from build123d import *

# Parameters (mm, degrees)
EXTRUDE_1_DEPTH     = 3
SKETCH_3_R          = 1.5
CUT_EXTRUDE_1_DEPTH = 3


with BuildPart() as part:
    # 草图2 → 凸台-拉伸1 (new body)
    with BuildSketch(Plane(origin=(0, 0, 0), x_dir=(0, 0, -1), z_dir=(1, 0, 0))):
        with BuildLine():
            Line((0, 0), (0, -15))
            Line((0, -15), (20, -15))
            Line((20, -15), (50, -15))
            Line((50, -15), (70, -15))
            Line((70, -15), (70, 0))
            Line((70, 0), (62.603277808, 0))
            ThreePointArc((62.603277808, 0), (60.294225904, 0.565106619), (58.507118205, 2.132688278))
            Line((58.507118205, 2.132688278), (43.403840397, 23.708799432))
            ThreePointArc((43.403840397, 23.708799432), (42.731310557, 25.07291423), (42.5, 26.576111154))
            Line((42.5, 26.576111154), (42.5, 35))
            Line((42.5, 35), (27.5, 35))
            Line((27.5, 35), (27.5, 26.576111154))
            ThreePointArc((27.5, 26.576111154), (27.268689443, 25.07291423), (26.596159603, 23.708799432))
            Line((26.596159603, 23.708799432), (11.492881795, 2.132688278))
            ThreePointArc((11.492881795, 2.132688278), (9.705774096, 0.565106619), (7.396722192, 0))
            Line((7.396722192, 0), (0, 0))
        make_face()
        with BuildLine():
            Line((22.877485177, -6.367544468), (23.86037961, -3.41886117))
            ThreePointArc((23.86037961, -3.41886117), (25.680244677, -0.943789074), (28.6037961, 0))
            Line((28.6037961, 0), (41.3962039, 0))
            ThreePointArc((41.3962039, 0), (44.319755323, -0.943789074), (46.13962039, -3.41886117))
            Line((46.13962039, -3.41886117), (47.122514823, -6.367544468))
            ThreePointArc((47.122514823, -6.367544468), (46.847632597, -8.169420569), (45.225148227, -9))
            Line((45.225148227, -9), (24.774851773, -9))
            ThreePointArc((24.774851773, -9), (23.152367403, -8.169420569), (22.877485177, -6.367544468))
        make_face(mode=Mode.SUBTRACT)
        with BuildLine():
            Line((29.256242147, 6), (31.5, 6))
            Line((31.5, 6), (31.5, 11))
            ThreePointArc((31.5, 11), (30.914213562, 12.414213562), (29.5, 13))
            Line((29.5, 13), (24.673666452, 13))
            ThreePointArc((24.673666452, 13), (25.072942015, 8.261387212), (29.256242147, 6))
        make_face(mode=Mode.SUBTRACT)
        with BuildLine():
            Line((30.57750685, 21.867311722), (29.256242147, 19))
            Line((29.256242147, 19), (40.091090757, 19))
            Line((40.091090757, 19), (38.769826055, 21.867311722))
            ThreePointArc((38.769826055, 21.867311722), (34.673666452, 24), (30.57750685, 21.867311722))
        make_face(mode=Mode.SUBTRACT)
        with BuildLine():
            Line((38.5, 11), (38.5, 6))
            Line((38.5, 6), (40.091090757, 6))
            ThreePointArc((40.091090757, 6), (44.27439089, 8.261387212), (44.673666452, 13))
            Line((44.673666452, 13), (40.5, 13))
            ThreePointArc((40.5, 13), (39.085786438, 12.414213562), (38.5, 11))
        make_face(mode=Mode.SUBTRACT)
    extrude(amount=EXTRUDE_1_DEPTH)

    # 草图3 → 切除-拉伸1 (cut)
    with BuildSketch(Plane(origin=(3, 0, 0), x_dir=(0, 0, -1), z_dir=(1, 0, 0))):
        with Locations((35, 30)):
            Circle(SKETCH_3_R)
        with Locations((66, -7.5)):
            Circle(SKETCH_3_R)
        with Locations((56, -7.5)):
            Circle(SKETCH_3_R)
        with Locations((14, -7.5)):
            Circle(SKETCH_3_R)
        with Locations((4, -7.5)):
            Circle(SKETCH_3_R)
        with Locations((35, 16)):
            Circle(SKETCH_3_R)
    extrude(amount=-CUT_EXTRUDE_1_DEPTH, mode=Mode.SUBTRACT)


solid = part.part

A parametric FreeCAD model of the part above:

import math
import FreeCAD as App
import Part
import Sketcher
Q = App.Units.Quantity

doc = App.newDocument("Part")
body = doc.addObject("PartDesign::Body", "Body")

sketch1 = body.newObject("Sketcher::SketchObject", "Sketch")
sketch1.AttachmentSupport = (doc.getObject("YZ_Plane"), [""])
sketch1.MapMode = "FlatFace"
sketch1.addGeometry(Part.LineSegment(App.Vector(0, 0, 0), App.Vector(-15, 0, 0)), False)
sketch1.addGeometry(Part.LineSegment(App.Vector(-15, 0, 0), App.Vector(-15, -70, 0)), False)
sketch1.addGeometry(Part.LineSegment(App.Vector(-15, -70, 0), App.Vector(0, -70, 0)), False)
sketch1.addGeometry(Part.LineSegment(App.Vector(0, -70, 0), App.Vector(0, -62.6, 0)), False)
sketch1.addGeometry(Part.ArcOfCircle(Part.Circle(App.Vector(5, -62.6, 0), App.Vector(0, 0, 1), 5), math.radians(125), math.radians(180)), False)
sketch1.addGeometry(Part.LineSegment(App.Vector(2.1, -58.5, 0), App.Vector(23.7, -43.4, 0)), False)
sketch1.addGeometry(Part.ArcOfCircle(Part.Circle(App.Vector(26.6, -47.5, 0), App.Vector(0, 0, 1), 5), math.radians(90), math.radians(125)), False)
sketch1.addGeometry(Part.LineSegment(App.Vector(26.6, -42.5, 0), App.Vector(35, -42.5, 0)), False)
sketch1.addGeometry(Part.LineSegment(App.Vector(35, -42.5, 0), App.Vector(35, -27.5, 0)), False)
sketch1.addGeometry(Part.LineSegment(App.Vector(35, -27.5, 0), App.Vector(26.6, -27.5, 0)), False)
sketch1.addGeometry(Part.ArcOfCircle(Part.Circle(App.Vector(26.6, -22.5, 0), App.Vector(0, 0, 1), 5), math.radians(-125), math.radians(-90)), False)
sketch1.addGeometry(Part.LineSegment(App.Vector(23.7, -26.6, 0), App.Vector(2.1, -11.5, 0)), False)
sketch1.addGeometry(Part.ArcOfCircle(Part.Circle(App.Vector(5, -7.4, 0), App.Vector(0, 0, 1), 5), math.radians(-180), math.radians(-125)), False)
sketch1.addGeometry(Part.LineSegment(App.Vector(0, -7.4, 0), App.Vector(0, 0, 0)), False)
sketch1.addGeometry(Part.ArcOfCircle(Part.Circle(App.Vector(-7, -24.8, 0), App.Vector(0, 0, 1), 2), math.radians(72), math.radians(180)), False)
sketch1.addGeometry(Part.LineSegment(App.Vector(-6.4, -22.9, 0), App.Vector(-3.4, -23.9, 0)), False)
sketch1.addGeometry(Part.ArcOfCircle(Part.Circle(App.Vector(-5, -28.6, 0), App.Vector(0, 0, 1), 5), math.radians(0), math.radians(72)), False)
sketch1.addGeometry(Part.LineSegment(App.Vector(0, -28.6, 0), App.Vector(0, -41.4, 0)), False)
sketch1.addGeometry(Part.ArcOfCircle(Part.Circle(App.Vector(-5, -41.4, 0), App.Vector(0, 0, 1), 5), math.radians(-72), math.radians(0)), False)
sketch1.addGeometry(Part.LineSegment(App.Vector(-3.4, -46.1, 0), App.Vector(-6.4, -47.1, 0)), False)
sketch1.addGeometry(Part.ArcOfCircle(Part.Circle(App.Vector(-7, -45.2, 0), App.Vector(0, 0, 1), 2), math.radians(-180), math.radians(-72)), False)
sketch1.addGeometry(Part.LineSegment(App.Vector(-9, -45.2, 0), App.Vector(-9, -24.8, 0)), False)
sketch1.addGeometry(Part.LineSegment(App.Vector(6, -31.5, 0), App.Vector(6, -29.3, 0)), False)
sketch1.addGeometry(Part.ArcOfCircle(Part.Circle(App.Vector(11, -29.3, 0), App.Vector(0, 0, 1), 5), math.radians(66), math.radians(180)), False)
sketch1.addGeometry(Part.LineSegment(App.Vector(13, -24.7, 0), App.Vector(13, -29.5, 0)), False)
sketch1.addGeometry(Part.ArcOfCircle(Part.Circle(App.Vector(11, -29.5, 0), App.Vector(0, 0, 1), 2), math.radians(-90), math.radians(0)), False)
sketch1.addGeometry(Part.LineSegment(App.Vector(11, -31.5, 0), App.Vector(6, -31.5, 0)), False)
sketch1.addGeometry(Part.LineSegment(App.Vector(19, -29.3, 0), App.Vector(21.9, -30.6, 0)), False)
sketch1.addGeometry(Part.ArcOfCircle(Part.Circle(App.Vector(19, -34.7, 0), App.Vector(0, 0, 1), 5), math.radians(-55), math.radians(55)), False)
sketch1.addGeometry(Part.LineSegment(App.Vector(21.9, -38.8, 0), App.Vector(19, -40.1, 0)), False)
sketch1.addGeometry(Part.LineSegment(App.Vector(19, -40.1, 0), App.Vector(19, -29.3, 0)), False)
sketch1.addGeometry(Part.LineSegment(App.Vector(6, -38.5, 0), App.Vector(11, -38.5, 0)), False)
sketch1.addGeometry(Part.ArcOfCircle(Part.Circle(App.Vector(11, -40.5, 0), App.Vector(0, 0, 1), 2), math.radians(0), math.radians(90)), False)
sketch1.addGeometry(Part.LineSegment(App.Vector(13, -40.5, 0), App.Vector(13, -44.7, 0)), False)
sketch1.addGeometry(Part.ArcOfCircle(Part.Circle(App.Vector(11, -40.1, 0), App.Vector(0, 0, 1), 5), math.radians(180), math.radians(294)), False)
sketch1.addGeometry(Part.LineSegment(App.Vector(6, -40.1, 0), App.Vector(6, -38.5, 0)), False)
sketch1.addConstraint(Sketcher.Constraint("Coincident", 0, 2, 1, 1))
sketch1.addConstraint(Sketcher.Constraint("Coincident", 1, 2, 2, 1))
sketch1.addConstraint(Sketcher.Constraint("Coincident", 2, 2, 3, 1))
sketch1.addConstraint(Sketcher.Constraint("Tangent", 3, 2, 4, 2))
sketch1.addConstraint(Sketcher.Constraint("Tangent", 4, 1, 5, 1))
sketch1.addConstraint(Sketcher.Constraint("Tangent", 5, 2, 6, 2))
sketch1.addConstraint(Sketcher.Constraint("Tangent", 6, 1, 7, 1))
sketch1.addConstraint(Sketcher.Constraint("Coincident", 7, 2, 8, 1))
sketch1.addConstraint(Sketcher.Constraint("Coincident", 8, 2, 9, 1))
sketch1.addConstraint(Sketcher.Constraint("Tangent", 9, 2, 10, 2))
sketch1.addConstraint(Sketcher.Constraint("Tangent", 10, 1, 11, 1))
sketch1.addConstraint(Sketcher.Constraint("Tangent", 11, 2, 12, 2))
sketch1.addConstraint(Sketcher.Constraint("Tangent", 12, 1, 13, 1))
sketch1.addConstraint(Sketcher.Constraint("Coincident", 13, 2, 0, 1))
sketch1.addConstraint(Sketcher.Constraint("Tangent", 14, 1, 15, 1))
sketch1.addConstraint(Sketcher.Constraint("Tangent", 15, 2, 16, 2))
sketch1.addConstraint(Sketcher.Constraint("Tangent", 16, 1, 17, 1))
sketch1.addConstraint(Sketcher.Constraint("Tangent", 17, 2, 18, 2))
sketch1.addConstraint(Sketcher.Constraint("Tangent", 18, 1, 19, 1))
sketch1.addConstraint(Sketcher.Constraint("Tangent", 19, 2, 20, 2))
sketch1.addConstraint(Sketcher.Constraint("Tangent", 20, 1, 21, 1))
sketch1.addConstraint(Sketcher.Constraint("Tangent", 21, 2, 14, 2))
sketch1.addConstraint(Sketcher.Constraint("Tangent", 22, 2, 23, 2))
sketch1.addConstraint(Sketcher.Constraint("Coincident", 23, 1, 24, 1))
sketch1.addConstraint(Sketcher.Constraint("Tangent", 24, 2, 25, 2))
sketch1.addConstraint(Sketcher.Constraint("Tangent", 25, 1, 26, 1))
sketch1.addConstraint(Sketcher.Constraint("Coincident", 26, 2, 22, 1))
sketch1.addConstraint(Sketcher.Constraint("Coincident", 27, 2, 28, 2))
sketch1.addConstraint(Sketcher.Constraint("Coincident", 28, 1, 29, 1))
sketch1.addConstraint(Sketcher.Constraint("Coincident", 29, 2, 30, 1))
sketch1.addConstraint(Sketcher.Constraint("Coincident", 30, 2, 27, 1))
sketch1.addConstraint(Sketcher.Constraint("Tangent", 31, 2, 32, 2))
sketch1.addConstraint(Sketcher.Constraint("Tangent", 32, 1, 33, 1))
sketch1.addConstraint(Sketcher.Constraint("Coincident", 33, 2, 34, 2))
sketch1.addConstraint(Sketcher.Constraint("Tangent", 34, 1, 35, 1))
sketch1.addConstraint(Sketcher.Constraint("Coincident", 35, 2, 31, 1))
sketch1.addConstraint(Sketcher.Constraint("Horizontal", 0))
sketch1.addConstraint(Sketcher.Constraint("Vertical", 1))
sketch1.addConstraint(Sketcher.Constraint("Horizontal", 2))
sketch1.addConstraint(Sketcher.Constraint("Vertical", 3))
sketch1.addConstraint(Sketcher.Constraint("Horizontal", 7))
sketch1.addConstraint(Sketcher.Constraint("Vertical", 8))
sketch1.addConstraint(Sketcher.Constraint("Horizontal", 9))
sketch1.addConstraint(Sketcher.Constraint("Vertical", 13))
sketch1.addConstraint(Sketcher.Constraint("Vertical", 17))
sketch1.addConstraint(Sketcher.Constraint("Vertical", 21))
sketch1.addConstraint(Sketcher.Constraint("Vertical", 22))
sketch1.addConstraint(Sketcher.Constraint("Vertical", 24))
sketch1.addConstraint(Sketcher.Constraint("Horizontal", 26))
sketch1.addConstraint(Sketcher.Constraint("Vertical", 30))
sketch1.addConstraint(Sketcher.Constraint("Horizontal", 31))
sketch1.addConstraint(Sketcher.Constraint("Vertical", 33))
sketch1.addConstraint(Sketcher.Constraint("Vertical", 35))
sketch1.addConstraint(Sketcher.Constraint("Coincident", 13, 2, -1, 1))
sketch1.addConstraint(Sketcher.Constraint("Equal", 4, 6))
sketch1.addConstraint(Sketcher.Constraint("Equal", 6, 10))
sketch1.addConstraint(Sketcher.Constraint("Equal", 10, 12))
sketch1.addConstraint(Sketcher.Constraint("Equal", 12, 16))
sketch1.addConstraint(Sketcher.Constraint("Equal", 16, 18))
sketch1.addConstraint(Sketcher.Constraint("Equal", 14, 20))
sketch1.addConstraint(Sketcher.Constraint("Equal", 18, 23))
sketch1.addConstraint(Sketcher.Constraint("Equal", 20, 25))
sketch1.addConstraint(Sketcher.Constraint("Equal", 23, 28))
sketch1.addConstraint(Sketcher.Constraint("Equal", 25, 32))
sketch1.addConstraint(Sketcher.Constraint("Equal", 28, 34))
sketch1.addConstraint(Sketcher.Constraint("PointOnObject", 2, 2, -2))
sketch1.addConstraint(Sketcher.Constraint("PointOnObject", 16, 1, -2))
sketch1.addConstraint(Sketcher.Constraint("Horizontal", 34, 3, 29, 2))
sketch1.addConstraint(Sketcher.Constraint("Horizontal", 22, 2, 30, 2))
sketch1.addConstraint(Sketcher.Constraint("Vertical", 6, 3, 10, 3))
sketch1.addConstraint(Sketcher.Constraint("Vertical", 23, 3, 25, 3))
sketch1.addConstraint(Sketcher.Constraint("Vertical", 25, 3, 32, 3))
sketch1.addConstraint(Sketcher.Constraint("Vertical", 32, 3, 34, 3))
sketch1.addConstraint(Sketcher.Constraint("Vertical", 5, 2, 10, 1))
sketch1.addConstraint(Sketcher.Constraint("Vertical", 15, 2, 18, 1))
sketch1.addConstraint(Sketcher.Constraint("Vertical", 27, 2, 28, 1))
sketch1.addConstraint(Sketcher.Constraint("Vertical", 28, 3, 29, 2))
sketch1.addConstraint(Sketcher.Constraint("Equal", 2, 8))
sketch1.addConstraint(Sketcher.Constraint("Equal", 3, 13))
sketch1.addConstraint(Sketcher.Constraint("Equal", 27, 29))
sketch1.addConstraint(Sketcher.Constraint("Radius", 4, Q("5 mm")))
sketch1.addConstraint(Sketcher.Constraint("Radius", 14, Q("2 mm")))
sketch1.addConstraint(Sketcher.Constraint("DistanceX", 0, 2, 0, 1, Q("15 mm")))
sketch1.addConstraint(Sketcher.Constraint("DistanceY", 1, 2, 1, 1, Q("70 mm")))
sketch1.addConstraint(Sketcher.Constraint("DistanceX", 14, 3, -1, 1, Q("7 mm")))
sketch1.addConstraint(Sketcher.Constraint("DistanceX", -1, 1, 23, 3, Q("11 mm")))
sketch1.addConstraint(Sketcher.Constraint("DistanceX", -1, 1, 28, 3, Q("19 mm")))
sketch1.addConstraint(Sketcher.Constraint("DistanceX", -1, 1, 7, 2, Q("35 mm")))
sketch1.addConstraint(Sketcher.Constraint("DistanceY", 25, 3, 10, 3, Q("7 mm")))
sketch1.addConstraint(Sketcher.Constraint("DistanceY", 32, 3, 25, 3, Q("11 mm")))
sketch1.addConstraint(Sketcher.Constraint("DistanceY", 28, 3, 23, 1, Q("10 mm")))
sketch1.addConstraint(Sketcher.Constraint("Distance", 5, Q("26.337 mm")))
sketch1.addConstraint(Sketcher.Constraint("DistanceX", 7, 1, 7, 2, Q("8.423889 mm")))
sketch1.addConstraint(Sketcher.Constraint("DistanceY", 35, 1, 35, 2, Q("1.591091 mm")))
sketch1.addConstraint(Sketcher.Constraint("DistanceX", 27, 2, 9, 2, Q("4.708799 mm")))
sketch1.addConstraint(Sketcher.Constraint("DistanceY", 17, 2, 17, 1, Q("12.792408 mm")))
sketch1.addConstraint(Sketcher.Constraint("DistanceY", 21, 1, 21, 2, Q("20.450296 mm")))
sketch1.addConstraint(Sketcher.Constraint("DistanceY", 14, 3, -1, 1, Q("24.774852 mm")))
pad1 = body.newObject("PartDesign::Pad", "Pad")
pad1.Profile = sketch1
pad1.Length = 3

sketch2 = body.newObject("Sketcher::SketchObject", "Sketch001")
sketch2.AttachmentSupport = (doc.getObject("YZ_Plane"), [""])
sketch2.MapMode = "FlatFace"
sketch2.AttachmentOffset = App.Placement(App.Vector(0, 0, 3), App.Rotation())
sketch2.addGeometry(Part.Circle(App.Vector(30, -35, 0), App.Vector(0, 0, 1), 1.5), False)
sketch2.addGeometry(Part.Circle(App.Vector(-7.5, -66, 0), App.Vector(0, 0, 1), 1.5), False)
sketch2.addGeometry(Part.Circle(App.Vector(-7.5, -56, 0), App.Vector(0, 0, 1), 1.5), False)
sketch2.addGeometry(Part.Circle(App.Vector(-7.5, -14, 0), App.Vector(0, 0, 1), 1.5), False)
sketch2.addGeometry(Part.Circle(App.Vector(-7.5, -4, 0), App.Vector(0, 0, 1), 1.5), False)
sketch2.addGeometry(Part.Circle(App.Vector(16, -35, 0), App.Vector(0, 0, 1), 1.5), False)
sketch2.addConstraint(Sketcher.Constraint("Equal", 0, 1))
sketch2.addConstraint(Sketcher.Constraint("Equal", 1, 2))
sketch2.addConstraint(Sketcher.Constraint("Equal", 2, 3))
sketch2.addConstraint(Sketcher.Constraint("Equal", 3, 4))
sketch2.addConstraint(Sketcher.Constraint("Equal", 4, 5))
sketch2.addConstraint(Sketcher.Constraint("Horizontal", 0, 3, 5, 3))
sketch2.addConstraint(Sketcher.Constraint("Vertical", 1, 3, 2, 3))
sketch2.addConstraint(Sketcher.Constraint("Vertical", 2, 3, 3, 3))
sketch2.addConstraint(Sketcher.Constraint("Vertical", 3, 3, 4, 3))
sketch2.addConstraint(Sketcher.Constraint("Diameter", 0, Q("3 mm")))
sketch2.addConstraint(Sketcher.Constraint("DistanceX", -1, 1, 0, 3, Q("30 mm")))
sketch2.addConstraint(Sketcher.Constraint("DistanceY", 0, 3, -1, 1, Q("35 mm")))
sketch2.addConstraint(Sketcher.Constraint("DistanceY", 1, 3, -1, 1, Q("66 mm")))
sketch2.addConstraint(Sketcher.Constraint("DistanceY", 2, 3, -1, 1, Q("56 mm")))
sketch2.addConstraint(Sketcher.Constraint("DistanceY", 3, 3, -1, 1, Q("14 mm")))
sketch2.addConstraint(Sketcher.Constraint("DistanceY", 4, 3, -1, 1, Q("4 mm")))
sketch2.addConstraint(Sketcher.Constraint("DistanceX", -1, 1, 5, 3, Q("16 mm")))
sketch2.addConstraint(Sketcher.Constraint("DistanceX", 1, 3, -1, 1, Q("7.5 mm")))
pocket1 = body.newObject("PartDesign::Pocket", "Pocket")
pocket1.Profile = sketch2
pocket1.Length = 3

doc.recompute()
